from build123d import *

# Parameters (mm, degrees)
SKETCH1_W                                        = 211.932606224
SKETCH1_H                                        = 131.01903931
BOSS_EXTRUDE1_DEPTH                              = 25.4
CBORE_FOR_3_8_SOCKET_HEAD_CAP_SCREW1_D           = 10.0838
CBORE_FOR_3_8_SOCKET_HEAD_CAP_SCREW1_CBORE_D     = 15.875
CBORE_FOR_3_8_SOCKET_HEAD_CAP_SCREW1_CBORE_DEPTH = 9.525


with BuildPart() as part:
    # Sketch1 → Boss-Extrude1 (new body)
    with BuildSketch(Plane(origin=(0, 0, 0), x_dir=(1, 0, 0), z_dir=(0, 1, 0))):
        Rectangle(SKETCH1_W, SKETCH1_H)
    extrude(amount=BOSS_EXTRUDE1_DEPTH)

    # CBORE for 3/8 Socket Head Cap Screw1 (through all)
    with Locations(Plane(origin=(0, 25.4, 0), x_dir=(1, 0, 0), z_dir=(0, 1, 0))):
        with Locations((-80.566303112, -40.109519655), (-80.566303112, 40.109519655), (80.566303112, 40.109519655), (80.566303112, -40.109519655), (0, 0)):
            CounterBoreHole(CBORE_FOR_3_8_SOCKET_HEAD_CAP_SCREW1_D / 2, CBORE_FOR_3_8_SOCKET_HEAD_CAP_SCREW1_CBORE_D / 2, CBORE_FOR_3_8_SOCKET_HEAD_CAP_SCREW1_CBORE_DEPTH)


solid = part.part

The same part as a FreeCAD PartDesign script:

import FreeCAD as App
import Part
import Sketcher

V = App.Vector
Q = App.Units.Quantity


def add_polygon(sketch, points):
    """Adds a closed chain of lines whose ends are joined by coincident constraints."""
    first, n = sketch.GeometryCount, len(points)
    for a, b in zip(points, points[1:] + points[:1]):
        sketch.addGeometry(Part.LineSegment(App.Vector(*a, 0), App.Vector(*b, 0)), False)
    for i in range(n):
        sketch.addConstraint(Sketcher.Constraint("Coincident", first + i, 2, first + (i + 1) % n, 1))

doc = App.newDocument("Part")
params = doc.addObject("Spreadsheet::Sheet", "Params")
for row, (alias, value) in enumerate([
    ("pad1_length", "1 in"),
    ("sketch2_diameter", "0.397 in"),
    ("hole_diameter", "0.397 in"),
    ("hole_cbore_diameter", "0.625 in"),
    ("hole_cbore_depth", "0.375 in"),
], start=1):
    params.set(f"A{row}", alias)
    params.set(f"B{row}", "=" + value)
    params.setAlias(f"B{row}", alias)

body = doc.addObject("PartDesign::Body", "Body")

# Sketch on XZ plane
sketch1 = body.newObject("Sketcher::SketchObject", "Sketch")
sketch1.AttachmentSupport = (doc.getObject("XZ_Plane"), [""])
sketch1.MapMode = "FlatFace"
add_polygon(sketch1, [(-105.966303, -65.50952), (-105.966303, 65.50952), (105.966303, 65.50952), (105.966303, -65.50952)])  # lines 0-3
sketch1.addConstraint(Sketcher.Constraint("Vertical", 0))
sketch1.addConstraint(Sketcher.Constraint("Horizontal", 1))
sketch1.addConstraint(Sketcher.Constraint("Vertical", 2))
sketch1.addConstraint(Sketcher.Constraint("Horizontal", 3))
sketch1.addConstraint(Sketcher.Constraint("Symmetric", 0, 2, 2, 2, -1, 1))
sketch1.addConstraint(Sketcher.Constraint("DistanceY", 0, 1, 0, 2, Q("131.019039 mm")))
sketch1.addConstraint(Sketcher.Constraint("DistanceX", 1, 1, 1, 2, Q("211.932606 mm")))
pad1 = body.newObject("PartDesign::Pad", "Pad")
pad1.Profile = sketch1
pad1.setExpression("Length", "Params.pad1_length")
pad1.Reversed = True

# Sketch on XZ plane
sketch2 = body.newObject("Sketcher::SketchObject", "Sketch001")
sketch2.AttachmentSupport = (doc.getObject("XZ_Plane"), [""])
sketch2.MapMode = "FlatFace"
sketch2.AttachmentOffset = App.Placement(V(0, 0, -1 * 25.4), App.Rotation())
sketch2.addGeometry(Part.Circle(V(-80.566303, 40.10952, 0), V(0, 0, 1), 5.0419), False)
sketch2.addGeometry(Part.Circle(V(-80.566303, -40.10952, 0), V(0, 0, 1), 5.0419), False)
sketch2.addGeometry(Part.Circle(V(80.566303, -40.10952, 0), V(0, 0, 1), 5.0419), False)
sketch2.addGeometry(Part.Circle(V(80.566303, 40.10952, 0), V(0, 0, 1), 5.0419), False)
sketch2.addGeometry(Part.Circle(V(0, 0, 0), V(0, 0, 1), 5.0419), False)
sketch2.addConstraint(Sketcher.Constraint("Coincident", 4, 3, -1, 1))
sketch2.addConstraint(Sketcher.Constraint("Equal", 0, 1))
sketch2.addConstraint(Sketcher.Constraint("Equal", 1, 2))
sketch2.addConstraint(Sketcher.Constraint("Equal", 2, 3))
sketch2.addConstraint(Sketcher.Constraint("Equal", 3, 4))
sketch2.addConstraint(Sketcher.Constraint("Symmetric", 0, 3, 2, 3, -1, 1))
sketch2.addConstraint(Sketcher.Constraint("Symmetric", 1, 3, 3, 3, -1, 1))
sketch2.addConstraint(Sketcher.Constraint("Symmetric", 1, 3, 2, 3, -2))
sketch2.addConstraint(Sketcher.Constraint("Diameter", 0, Q("0.397 in")))
sketch2.addConstraint(Sketcher.Constraint("DistanceY", -1, 1, 0, 3, Q("40.10952 mm")))
sketch2.addConstraint(Sketcher.Constraint("DistanceX", 0, 3, -1, 1, Q("80.566303 mm")))
sketch2.setExpression("Constraints[8]", "Params.sketch2_diameter")
doc.recompute()
hole = body.newObject("PartDesign::Hole", "Hole")
hole.Profile = sketch2
hole.ThreadType = "None"
hole.setExpression("Diameter", "Params.hole_diameter")
hole.DepthType = "ThroughAll"
hole.HoleCutType = "Counterbore"
hole.setExpression("HoleCutDiameter", "Params.hole_cbore_diameter")
hole.setExpression("HoleCutDepth", "Params.hole_cbore_depth")
hole.Reversed = True

doc.recompute()
